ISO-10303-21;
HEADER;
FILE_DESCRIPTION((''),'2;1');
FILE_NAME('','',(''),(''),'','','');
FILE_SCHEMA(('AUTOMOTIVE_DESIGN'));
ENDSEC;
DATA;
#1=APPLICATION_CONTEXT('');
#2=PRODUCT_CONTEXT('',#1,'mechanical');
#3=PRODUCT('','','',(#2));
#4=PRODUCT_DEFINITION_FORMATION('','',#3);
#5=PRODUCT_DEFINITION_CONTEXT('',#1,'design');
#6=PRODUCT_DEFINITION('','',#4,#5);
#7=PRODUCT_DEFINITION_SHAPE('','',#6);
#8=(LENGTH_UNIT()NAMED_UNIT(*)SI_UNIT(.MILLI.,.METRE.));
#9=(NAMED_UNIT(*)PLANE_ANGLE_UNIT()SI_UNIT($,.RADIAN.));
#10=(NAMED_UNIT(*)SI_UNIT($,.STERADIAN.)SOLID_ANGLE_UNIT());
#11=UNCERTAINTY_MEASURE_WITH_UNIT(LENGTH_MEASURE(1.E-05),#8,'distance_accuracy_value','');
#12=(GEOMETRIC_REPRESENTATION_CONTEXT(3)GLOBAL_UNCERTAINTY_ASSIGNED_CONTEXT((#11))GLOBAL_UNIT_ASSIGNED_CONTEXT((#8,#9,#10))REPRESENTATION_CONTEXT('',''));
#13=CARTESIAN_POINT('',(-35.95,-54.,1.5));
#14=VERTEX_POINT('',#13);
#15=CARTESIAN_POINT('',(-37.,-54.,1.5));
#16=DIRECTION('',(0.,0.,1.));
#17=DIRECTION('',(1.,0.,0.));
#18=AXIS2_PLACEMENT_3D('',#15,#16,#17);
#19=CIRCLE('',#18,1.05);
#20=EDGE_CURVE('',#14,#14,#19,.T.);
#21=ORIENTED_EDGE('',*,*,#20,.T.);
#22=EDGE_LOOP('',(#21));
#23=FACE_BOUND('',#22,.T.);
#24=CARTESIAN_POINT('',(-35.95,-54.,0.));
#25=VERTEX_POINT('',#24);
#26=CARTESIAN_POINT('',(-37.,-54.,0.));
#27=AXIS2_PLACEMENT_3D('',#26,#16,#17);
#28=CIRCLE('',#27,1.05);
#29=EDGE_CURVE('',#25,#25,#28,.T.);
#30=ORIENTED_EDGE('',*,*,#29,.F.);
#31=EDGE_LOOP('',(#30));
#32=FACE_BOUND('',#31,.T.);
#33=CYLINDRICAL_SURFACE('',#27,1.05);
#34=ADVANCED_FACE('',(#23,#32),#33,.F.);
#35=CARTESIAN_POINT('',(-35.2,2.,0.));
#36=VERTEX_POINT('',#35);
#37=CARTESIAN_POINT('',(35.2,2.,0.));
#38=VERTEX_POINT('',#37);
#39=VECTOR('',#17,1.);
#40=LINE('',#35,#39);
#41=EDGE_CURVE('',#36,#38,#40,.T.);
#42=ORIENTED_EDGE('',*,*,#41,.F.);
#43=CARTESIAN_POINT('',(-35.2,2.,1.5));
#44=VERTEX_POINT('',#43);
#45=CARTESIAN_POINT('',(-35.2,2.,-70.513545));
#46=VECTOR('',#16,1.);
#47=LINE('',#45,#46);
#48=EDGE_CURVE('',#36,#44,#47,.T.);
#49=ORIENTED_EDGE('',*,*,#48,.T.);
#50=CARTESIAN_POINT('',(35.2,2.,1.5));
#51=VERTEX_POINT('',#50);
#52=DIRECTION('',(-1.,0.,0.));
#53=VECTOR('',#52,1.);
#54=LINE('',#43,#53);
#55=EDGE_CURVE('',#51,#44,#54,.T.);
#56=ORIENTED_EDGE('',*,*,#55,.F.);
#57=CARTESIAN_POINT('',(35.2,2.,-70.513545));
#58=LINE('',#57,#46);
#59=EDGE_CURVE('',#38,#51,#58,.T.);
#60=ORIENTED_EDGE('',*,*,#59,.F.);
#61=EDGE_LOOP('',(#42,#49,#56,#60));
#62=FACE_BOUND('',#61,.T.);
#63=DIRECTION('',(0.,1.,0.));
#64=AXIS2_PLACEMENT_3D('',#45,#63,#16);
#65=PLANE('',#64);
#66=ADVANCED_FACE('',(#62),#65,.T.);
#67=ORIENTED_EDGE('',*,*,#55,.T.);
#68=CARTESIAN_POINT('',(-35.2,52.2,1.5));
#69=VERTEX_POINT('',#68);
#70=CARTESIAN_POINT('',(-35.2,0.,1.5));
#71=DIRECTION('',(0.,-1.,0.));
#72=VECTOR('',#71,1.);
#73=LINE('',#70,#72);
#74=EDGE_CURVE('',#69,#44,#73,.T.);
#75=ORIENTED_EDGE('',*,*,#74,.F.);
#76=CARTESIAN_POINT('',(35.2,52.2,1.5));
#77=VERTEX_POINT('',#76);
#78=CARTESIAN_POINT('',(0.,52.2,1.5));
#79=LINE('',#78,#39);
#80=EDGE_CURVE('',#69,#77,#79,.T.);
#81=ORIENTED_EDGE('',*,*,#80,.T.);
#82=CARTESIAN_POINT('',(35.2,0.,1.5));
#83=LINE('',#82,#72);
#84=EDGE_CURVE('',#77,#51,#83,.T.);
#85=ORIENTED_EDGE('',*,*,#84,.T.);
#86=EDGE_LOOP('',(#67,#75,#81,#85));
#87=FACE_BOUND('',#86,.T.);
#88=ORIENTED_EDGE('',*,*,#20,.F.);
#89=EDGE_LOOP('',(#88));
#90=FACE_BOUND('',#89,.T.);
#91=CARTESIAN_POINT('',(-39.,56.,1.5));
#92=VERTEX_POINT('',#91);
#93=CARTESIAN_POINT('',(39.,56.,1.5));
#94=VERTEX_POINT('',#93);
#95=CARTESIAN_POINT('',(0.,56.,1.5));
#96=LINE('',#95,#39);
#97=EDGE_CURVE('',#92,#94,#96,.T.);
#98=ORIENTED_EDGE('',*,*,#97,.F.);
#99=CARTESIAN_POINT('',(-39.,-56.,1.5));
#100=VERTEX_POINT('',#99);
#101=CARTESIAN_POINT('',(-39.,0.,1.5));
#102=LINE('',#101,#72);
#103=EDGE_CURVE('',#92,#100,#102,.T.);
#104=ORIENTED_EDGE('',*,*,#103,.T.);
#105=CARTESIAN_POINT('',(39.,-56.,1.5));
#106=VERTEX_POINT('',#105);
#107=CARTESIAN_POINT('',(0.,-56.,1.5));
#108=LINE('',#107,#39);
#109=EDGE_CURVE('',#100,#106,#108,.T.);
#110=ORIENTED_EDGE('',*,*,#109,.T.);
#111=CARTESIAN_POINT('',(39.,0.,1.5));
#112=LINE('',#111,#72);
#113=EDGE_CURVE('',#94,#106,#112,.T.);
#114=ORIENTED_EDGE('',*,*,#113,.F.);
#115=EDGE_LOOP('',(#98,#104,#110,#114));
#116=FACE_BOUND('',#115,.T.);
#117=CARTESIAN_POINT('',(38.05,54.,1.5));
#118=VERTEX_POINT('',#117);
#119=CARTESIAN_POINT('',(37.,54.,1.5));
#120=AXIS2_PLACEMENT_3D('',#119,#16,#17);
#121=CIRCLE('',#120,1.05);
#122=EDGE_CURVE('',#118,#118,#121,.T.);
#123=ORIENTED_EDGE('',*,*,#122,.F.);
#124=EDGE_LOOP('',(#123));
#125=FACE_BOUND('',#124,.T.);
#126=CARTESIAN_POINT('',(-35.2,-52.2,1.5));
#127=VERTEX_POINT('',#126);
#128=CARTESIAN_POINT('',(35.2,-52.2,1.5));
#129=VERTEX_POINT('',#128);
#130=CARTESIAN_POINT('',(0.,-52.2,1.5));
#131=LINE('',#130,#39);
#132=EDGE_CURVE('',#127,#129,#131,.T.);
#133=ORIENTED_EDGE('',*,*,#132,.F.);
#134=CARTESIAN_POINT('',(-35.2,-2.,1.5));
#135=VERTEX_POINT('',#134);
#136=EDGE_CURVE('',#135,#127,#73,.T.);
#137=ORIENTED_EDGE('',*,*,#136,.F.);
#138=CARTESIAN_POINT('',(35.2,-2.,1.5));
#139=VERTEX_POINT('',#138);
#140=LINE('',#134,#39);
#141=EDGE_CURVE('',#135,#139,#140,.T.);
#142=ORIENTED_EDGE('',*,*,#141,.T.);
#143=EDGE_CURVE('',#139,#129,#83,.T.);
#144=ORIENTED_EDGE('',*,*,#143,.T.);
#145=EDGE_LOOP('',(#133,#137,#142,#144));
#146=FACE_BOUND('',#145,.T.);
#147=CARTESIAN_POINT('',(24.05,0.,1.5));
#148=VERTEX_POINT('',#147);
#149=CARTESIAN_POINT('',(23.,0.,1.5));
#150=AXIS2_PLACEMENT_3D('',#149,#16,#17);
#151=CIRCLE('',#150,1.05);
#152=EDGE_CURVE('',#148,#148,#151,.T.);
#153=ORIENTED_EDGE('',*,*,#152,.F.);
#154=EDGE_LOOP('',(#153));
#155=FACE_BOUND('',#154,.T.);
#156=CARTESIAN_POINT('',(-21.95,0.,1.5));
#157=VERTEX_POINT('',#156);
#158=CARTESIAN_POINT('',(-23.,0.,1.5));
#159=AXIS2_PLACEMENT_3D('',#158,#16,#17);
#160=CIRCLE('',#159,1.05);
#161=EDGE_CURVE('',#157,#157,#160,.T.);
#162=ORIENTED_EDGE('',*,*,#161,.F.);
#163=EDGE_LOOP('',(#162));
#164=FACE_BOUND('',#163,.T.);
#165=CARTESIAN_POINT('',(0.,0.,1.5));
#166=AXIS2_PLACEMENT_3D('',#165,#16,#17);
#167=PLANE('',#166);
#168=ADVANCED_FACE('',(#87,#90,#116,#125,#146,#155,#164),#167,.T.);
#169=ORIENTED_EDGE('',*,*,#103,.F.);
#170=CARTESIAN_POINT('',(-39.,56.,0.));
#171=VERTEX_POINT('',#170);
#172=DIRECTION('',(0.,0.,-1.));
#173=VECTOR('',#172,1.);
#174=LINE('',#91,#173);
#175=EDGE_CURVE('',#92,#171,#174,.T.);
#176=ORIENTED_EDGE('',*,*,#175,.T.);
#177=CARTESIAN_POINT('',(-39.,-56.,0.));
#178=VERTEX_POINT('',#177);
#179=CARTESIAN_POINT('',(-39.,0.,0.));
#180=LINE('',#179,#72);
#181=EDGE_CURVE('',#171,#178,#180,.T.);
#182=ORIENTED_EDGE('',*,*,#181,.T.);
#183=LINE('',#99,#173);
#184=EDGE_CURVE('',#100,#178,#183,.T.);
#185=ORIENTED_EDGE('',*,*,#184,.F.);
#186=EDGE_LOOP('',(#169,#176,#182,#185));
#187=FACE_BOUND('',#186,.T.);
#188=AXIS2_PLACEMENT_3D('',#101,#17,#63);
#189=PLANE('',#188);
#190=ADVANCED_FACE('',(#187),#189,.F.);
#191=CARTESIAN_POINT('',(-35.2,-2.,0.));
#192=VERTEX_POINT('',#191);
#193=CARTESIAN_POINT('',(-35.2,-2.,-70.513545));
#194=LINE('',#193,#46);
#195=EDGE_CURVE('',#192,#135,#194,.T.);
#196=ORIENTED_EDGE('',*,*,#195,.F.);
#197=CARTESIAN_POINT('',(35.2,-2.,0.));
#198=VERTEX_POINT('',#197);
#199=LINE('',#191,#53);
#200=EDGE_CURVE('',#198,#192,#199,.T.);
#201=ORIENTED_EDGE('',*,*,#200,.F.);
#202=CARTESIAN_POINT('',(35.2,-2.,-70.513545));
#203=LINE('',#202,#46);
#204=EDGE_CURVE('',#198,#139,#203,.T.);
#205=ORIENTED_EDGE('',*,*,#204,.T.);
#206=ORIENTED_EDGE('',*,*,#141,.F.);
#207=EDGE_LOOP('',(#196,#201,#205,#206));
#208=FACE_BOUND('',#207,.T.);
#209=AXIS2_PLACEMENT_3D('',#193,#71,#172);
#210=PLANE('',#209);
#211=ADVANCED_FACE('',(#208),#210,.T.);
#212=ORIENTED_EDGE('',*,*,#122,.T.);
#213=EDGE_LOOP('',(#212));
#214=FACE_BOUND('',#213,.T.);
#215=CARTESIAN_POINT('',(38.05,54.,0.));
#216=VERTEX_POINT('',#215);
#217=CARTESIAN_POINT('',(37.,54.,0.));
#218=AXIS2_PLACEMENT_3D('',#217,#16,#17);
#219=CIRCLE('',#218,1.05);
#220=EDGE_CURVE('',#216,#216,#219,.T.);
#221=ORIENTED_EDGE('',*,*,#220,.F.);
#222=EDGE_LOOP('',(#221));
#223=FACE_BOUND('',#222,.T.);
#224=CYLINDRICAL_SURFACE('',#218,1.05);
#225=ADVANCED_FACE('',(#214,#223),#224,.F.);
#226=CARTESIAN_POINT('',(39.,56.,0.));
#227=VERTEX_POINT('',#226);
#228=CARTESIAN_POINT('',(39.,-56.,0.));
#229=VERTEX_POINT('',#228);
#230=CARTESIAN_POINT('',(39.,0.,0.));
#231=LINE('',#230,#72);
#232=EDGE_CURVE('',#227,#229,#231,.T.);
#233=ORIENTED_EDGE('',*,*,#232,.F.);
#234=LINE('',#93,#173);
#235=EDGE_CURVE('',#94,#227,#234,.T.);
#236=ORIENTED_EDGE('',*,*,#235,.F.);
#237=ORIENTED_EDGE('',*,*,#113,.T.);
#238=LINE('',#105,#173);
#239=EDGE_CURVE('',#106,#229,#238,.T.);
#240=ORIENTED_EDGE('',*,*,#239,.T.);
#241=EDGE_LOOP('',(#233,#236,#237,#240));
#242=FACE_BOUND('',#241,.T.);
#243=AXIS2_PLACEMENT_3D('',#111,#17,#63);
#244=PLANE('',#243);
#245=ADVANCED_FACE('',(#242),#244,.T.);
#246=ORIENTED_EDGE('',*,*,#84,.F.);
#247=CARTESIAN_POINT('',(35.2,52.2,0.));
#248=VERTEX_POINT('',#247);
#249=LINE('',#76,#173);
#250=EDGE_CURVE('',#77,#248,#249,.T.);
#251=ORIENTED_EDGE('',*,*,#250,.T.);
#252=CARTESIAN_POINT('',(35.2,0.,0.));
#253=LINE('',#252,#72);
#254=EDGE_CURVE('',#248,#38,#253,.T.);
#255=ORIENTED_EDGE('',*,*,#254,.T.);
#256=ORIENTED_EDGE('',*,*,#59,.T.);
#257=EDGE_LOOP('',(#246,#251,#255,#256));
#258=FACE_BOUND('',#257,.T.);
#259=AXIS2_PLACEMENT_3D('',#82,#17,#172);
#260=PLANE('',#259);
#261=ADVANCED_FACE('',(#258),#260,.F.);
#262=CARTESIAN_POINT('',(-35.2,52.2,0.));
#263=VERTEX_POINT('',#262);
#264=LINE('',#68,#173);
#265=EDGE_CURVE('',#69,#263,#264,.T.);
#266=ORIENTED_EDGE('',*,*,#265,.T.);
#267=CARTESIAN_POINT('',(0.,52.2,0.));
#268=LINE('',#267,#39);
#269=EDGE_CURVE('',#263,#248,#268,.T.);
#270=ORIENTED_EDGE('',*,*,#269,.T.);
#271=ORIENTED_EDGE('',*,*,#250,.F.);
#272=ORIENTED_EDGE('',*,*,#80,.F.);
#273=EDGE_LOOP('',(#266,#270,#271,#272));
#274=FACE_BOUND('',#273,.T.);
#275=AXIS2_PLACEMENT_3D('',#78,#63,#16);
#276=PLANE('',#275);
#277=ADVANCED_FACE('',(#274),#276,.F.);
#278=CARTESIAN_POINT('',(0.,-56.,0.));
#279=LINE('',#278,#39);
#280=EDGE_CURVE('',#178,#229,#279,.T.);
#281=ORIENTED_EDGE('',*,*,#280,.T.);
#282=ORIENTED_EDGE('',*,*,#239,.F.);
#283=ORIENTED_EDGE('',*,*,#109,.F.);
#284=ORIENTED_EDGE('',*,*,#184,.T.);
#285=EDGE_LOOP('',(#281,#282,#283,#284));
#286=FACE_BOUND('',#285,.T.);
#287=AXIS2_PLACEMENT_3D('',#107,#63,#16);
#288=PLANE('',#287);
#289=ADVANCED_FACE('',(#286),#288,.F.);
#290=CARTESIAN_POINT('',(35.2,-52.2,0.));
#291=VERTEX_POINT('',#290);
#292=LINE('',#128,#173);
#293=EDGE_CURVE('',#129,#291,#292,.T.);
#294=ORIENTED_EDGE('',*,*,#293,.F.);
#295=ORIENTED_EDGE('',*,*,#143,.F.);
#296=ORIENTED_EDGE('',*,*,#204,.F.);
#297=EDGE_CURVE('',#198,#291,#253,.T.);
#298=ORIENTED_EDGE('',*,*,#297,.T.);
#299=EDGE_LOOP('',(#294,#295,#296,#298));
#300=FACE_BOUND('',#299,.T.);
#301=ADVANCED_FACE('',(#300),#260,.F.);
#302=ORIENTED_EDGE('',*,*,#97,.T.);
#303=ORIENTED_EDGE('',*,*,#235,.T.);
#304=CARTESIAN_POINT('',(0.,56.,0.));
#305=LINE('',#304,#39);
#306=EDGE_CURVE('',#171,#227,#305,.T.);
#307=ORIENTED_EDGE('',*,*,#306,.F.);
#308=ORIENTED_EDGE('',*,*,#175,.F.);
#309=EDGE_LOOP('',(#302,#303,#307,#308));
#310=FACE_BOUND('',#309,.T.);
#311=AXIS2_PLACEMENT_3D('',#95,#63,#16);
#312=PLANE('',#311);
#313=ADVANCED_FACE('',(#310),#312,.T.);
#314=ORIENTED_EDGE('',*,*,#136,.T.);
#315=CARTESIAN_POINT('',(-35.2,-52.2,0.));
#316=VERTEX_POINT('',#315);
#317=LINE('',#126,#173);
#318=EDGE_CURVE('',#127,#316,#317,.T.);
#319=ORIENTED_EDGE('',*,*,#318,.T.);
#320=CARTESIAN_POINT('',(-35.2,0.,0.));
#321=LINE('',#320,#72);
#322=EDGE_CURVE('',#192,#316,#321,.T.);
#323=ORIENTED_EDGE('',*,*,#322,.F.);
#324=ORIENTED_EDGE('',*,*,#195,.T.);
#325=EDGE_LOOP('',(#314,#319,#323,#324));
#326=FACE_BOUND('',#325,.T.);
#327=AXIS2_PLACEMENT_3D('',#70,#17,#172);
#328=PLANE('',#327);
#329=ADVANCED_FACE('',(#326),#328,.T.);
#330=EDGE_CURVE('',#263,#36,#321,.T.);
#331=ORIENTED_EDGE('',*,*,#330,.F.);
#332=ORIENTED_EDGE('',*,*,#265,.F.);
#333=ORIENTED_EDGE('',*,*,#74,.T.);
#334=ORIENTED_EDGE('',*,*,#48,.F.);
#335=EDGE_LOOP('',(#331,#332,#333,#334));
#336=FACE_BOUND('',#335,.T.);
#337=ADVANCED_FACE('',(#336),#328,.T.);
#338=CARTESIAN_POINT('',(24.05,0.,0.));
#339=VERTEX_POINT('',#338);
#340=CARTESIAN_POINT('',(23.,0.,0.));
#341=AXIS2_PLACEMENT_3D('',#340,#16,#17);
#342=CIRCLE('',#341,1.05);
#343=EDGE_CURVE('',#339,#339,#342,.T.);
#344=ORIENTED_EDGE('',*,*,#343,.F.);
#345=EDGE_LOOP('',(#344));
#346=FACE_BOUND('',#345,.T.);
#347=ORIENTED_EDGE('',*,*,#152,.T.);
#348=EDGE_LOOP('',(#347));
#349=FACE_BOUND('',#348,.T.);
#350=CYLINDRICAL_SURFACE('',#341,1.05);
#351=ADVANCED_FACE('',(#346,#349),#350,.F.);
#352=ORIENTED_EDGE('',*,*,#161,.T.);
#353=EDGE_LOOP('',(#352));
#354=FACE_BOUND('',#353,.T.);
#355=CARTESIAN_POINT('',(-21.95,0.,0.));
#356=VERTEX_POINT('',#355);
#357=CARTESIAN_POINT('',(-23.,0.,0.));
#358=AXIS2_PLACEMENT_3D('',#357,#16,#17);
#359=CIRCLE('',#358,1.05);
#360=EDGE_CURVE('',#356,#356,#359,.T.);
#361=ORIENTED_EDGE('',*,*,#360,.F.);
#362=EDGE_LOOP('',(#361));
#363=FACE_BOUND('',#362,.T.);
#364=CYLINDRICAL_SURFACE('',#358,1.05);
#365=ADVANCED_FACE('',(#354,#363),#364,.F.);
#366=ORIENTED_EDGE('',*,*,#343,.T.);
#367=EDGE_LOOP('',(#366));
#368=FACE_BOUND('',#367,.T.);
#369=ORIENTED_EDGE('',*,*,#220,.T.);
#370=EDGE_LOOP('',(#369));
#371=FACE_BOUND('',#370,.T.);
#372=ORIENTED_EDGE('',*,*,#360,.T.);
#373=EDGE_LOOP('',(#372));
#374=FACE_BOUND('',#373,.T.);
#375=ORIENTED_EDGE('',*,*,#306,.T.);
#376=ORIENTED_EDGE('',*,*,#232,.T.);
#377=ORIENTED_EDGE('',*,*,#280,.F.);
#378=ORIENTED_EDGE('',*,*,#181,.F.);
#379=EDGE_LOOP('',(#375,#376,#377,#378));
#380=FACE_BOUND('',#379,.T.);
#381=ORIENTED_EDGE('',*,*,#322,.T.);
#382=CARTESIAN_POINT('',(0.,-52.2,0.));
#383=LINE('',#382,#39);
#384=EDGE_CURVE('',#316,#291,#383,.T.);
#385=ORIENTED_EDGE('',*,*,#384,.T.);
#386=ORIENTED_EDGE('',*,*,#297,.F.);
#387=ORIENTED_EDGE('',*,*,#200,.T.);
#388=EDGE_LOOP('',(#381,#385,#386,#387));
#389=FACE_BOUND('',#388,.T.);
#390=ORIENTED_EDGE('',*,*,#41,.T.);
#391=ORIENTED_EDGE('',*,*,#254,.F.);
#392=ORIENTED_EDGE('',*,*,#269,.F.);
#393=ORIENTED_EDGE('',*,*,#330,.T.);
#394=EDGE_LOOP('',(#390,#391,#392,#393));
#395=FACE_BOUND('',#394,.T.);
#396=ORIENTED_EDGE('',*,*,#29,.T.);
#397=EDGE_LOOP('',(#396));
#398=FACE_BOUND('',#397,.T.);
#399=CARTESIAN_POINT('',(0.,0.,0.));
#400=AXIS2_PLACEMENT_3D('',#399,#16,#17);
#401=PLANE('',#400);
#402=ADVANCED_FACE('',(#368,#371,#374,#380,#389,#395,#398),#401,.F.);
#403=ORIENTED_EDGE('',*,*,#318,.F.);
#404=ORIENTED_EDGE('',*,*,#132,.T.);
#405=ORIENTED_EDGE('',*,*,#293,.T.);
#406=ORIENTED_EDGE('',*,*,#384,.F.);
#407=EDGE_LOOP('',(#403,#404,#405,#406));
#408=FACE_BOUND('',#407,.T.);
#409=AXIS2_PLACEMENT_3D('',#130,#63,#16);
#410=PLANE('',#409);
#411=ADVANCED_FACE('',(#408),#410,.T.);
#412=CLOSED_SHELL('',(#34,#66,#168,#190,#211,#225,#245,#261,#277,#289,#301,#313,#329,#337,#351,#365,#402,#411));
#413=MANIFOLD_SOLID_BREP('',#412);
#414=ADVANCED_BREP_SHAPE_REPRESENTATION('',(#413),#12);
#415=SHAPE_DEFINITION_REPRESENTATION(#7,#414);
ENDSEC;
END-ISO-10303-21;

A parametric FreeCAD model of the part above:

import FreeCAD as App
import Part
import Sketcher
Q = App.Units.Quantity

doc = App.newDocument("Part")
params = doc.addObject("Spreadsheet::Sheet", "Params")
for row, (alias, value) in enumerate([
    ("sketch1_width", "78 mm"),
    ("sketch1_height", "112 mm"),
    ("sketch1_width2", "70.4 mm"),
    ("sketch1_height2", "104.4 mm"),
    ("pad1_length", "1.5 mm"),
    ("sketch2_height", "4 mm"),
    ("sketch2_width", "70.4 mm"),
    ("pad2_length", "1.5 mm"),
    ("sketch3_diameter", "2.1 mm"),
], start=1):
    params.set(f"A{row}", alias)
    params.set(f"B{row}", "=" + value)
    params.setAlias(f"B{row}", alias)

body = doc.addObject("PartDesign::Body", "Body")

# Sketch on XY plane
sketch1 = doc.addObject("Sketcher::SketchObject", "Sketch")
body.addObject(sketch1)
sketch1.AttachmentSupport = (doc.XY_Plane, [""])
sketch1.MapMode = "FlatFace"
sketch1.addGeometry(Part.LineSegment(App.Vector(-39, 56, 0), App.Vector(-39, -56, 0)), False)
sketch1.addGeometry(Part.LineSegment(App.Vector(-39, -56, 0), App.Vector(39, -56, 0)), False)
sketch1.addGeometry(Part.LineSegment(App.Vector(39, -56, 0), App.Vector(39, 56, 0)), False)
sketch1.addGeometry(Part.LineSegment(App.Vector(39, 56, 0), App.Vector(-39, 56, 0)), False)
sketch1.addGeometry(Part.LineSegment(App.Vector(35, -52, 0), App.Vector(-35, -52, 0)), False)
sketch1.addGeometry(Part.LineSegment(App.Vector(-35, -52, 0), App.Vector(-35, 52, 0)), False)
sketch1.addGeometry(Part.LineSegment(App.Vector(-35, 52, 0), App.Vector(35, 52, 0)), False)
sketch1.addGeometry(Part.LineSegment(App.Vector(35, 52, 0), App.Vector(35, -52, 0)), False)
sketch1.addConstraint(Sketcher.Constraint("Coincident", 0, 2, 1, 1))
sketch1.addConstraint(Sketcher.Constraint("Coincident", 1, 2, 2, 1))
sketch1.addConstraint(Sketcher.Constraint("Coincident", 2, 2, 3, 1))
sketch1.addConstraint(Sketcher.Constraint("Coincident", 3, 2, 0, 1))
sketch1.addConstraint(Sketcher.Constraint("Coincident", 4, 2, 5, 1))
sketch1.addConstraint(Sketcher.Constraint("Coincident", 5, 2, 6, 1))
sketch1.addConstraint(Sketcher.Constraint("Coincident", 6, 2, 7, 1))
sketch1.addConstraint(Sketcher.Constraint("Coincident", 7, 2, 4, 1))
sketch1.addConstraint(Sketcher.Constraint("Vertical", 0))
sketch1.addConstraint(Sketcher.Constraint("Horizontal", 1))
sketch1.addConstraint(Sketcher.Constraint("Vertical", 2))
sketch1.addConstraint(Sketcher.Constraint("Horizontal", 3))
sketch1.addConstraint(Sketcher.Constraint("Horizontal", 4))
sketch1.addConstraint(Sketcher.Constraint("Vertical", 5))
sketch1.addConstraint(Sketcher.Constraint("Horizontal", 6))
sketch1.addConstraint(Sketcher.Constraint("Vertical", 7))
sketch1.addConstraint(Sketcher.Constraint("Symmetric", 0, 2, 2, 2, -1, 1))
sketch1.addConstraint(Sketcher.Constraint("Symmetric", 4, 2, 6, 2, -1, 1))
sketch1.addConstraint(Sketcher.Constraint("DistanceX", 1, 1, 1, 2, Q("78 mm")))
sketch1.addConstraint(Sketcher.Constraint("DistanceY", 0, 2, 0, 1, Q("112 mm")))
sketch1.addConstraint(Sketcher.Constraint("DistanceX", 4, 2, 4, 1, Q("70.4 mm")))
sketch1.addConstraint(Sketcher.Constraint("DistanceY", 5, 1, 5, 2, Q("104.4 mm")))
sketch1.setExpression("Constraints[18]", "Params.sketch1_width")
sketch1.setExpression("Constraints[19]", "Params.sketch1_height")
sketch1.setExpression("Constraints[20]", "Params.sketch1_width2")
sketch1.setExpression("Constraints[21]", "Params.sketch1_height2")
pad1 = doc.addObject("PartDesign::Pad", "Pad")
body.addObject(pad1)
pad1.Profile = sketch1
pad1.setExpression("Length", "Params.pad1_length")

# Sketch on XY plane
sketch2 = doc.addObject("Sketcher::SketchObject", "Sketch001")
body.addObject(sketch2)
sketch2.AttachmentSupport = (doc.XY_Plane, [""])
sketch2.MapMode = "FlatFace"
sketch2.AttachmentOffset = App.Placement(App.Vector(0, 0, 1.5), App.Rotation())
sketch2.addGeometry(Part.LineSegment(App.Vector(-35.2, 2, 0), App.Vector(-35.2, -2, 0)), False)
sketch2.addGeometry(Part.LineSegment(App.Vector(-35.2, -2, 0), App.Vector(35.2, -2, 0)), False)
sketch2.addGeometry(Part.LineSegment(App.Vector(35.2, -2, 0), App.Vector(35.2, 2, 0)), False)
sketch2.addGeometry(Part.LineSegment(App.Vector(35.2, 2, 0), App.Vector(-35.2, 2, 0)), False)
sketch2.addConstraint(Sketcher.Constraint("Coincident", 0, 2, 1, 1))
sketch2.addConstraint(Sketcher.Constraint("Coincident", 1, 2, 2, 1))
sketch2.addConstraint(Sketcher.Constraint("Coincident", 2, 2, 3, 1))
sketch2.addConstraint(Sketcher.Constraint("Coincident", 3, 2, 0, 1))
sketch2.addConstraint(Sketcher.Constraint("Vertical", 0))
sketch2.addConstraint(Sketcher.Constraint("Horizontal", 1))
sketch2.addConstraint(Sketcher.Constraint("Vertical", 2))
sketch2.addConstraint(Sketcher.Constraint("Horizontal", 3))
sketch2.addConstraint(Sketcher.Constraint("Symmetric", 0, 2, 2, 2, -1, 1))
sketch2.addConstraint(Sketcher.Constraint("DistanceY", 0, 2, 0, 1, Q("4 mm")))
sketch2.addConstraint(Sketcher.Constraint("DistanceX", 1, 1, 1, 2, Q("70.4 mm")))
sketch2.setExpression("Constraints[9]", "Params.sketch2_height")
sketch2.setExpression("Constraints[10]", "Params.sketch2_width")
pad2 = doc.addObject("PartDesign::Pad", "Pad001")
body.addObject(pad2)
pad2.Profile = sketch2
pad2.setExpression("Length", "Params.pad2_length")
pad2.Reversed = True

# Sketch on XY plane
sketch3 = doc.addObject("Sketcher::SketchObject", "Sketch002")
body.addObject(sketch3)
sketch3.AttachmentSupport = (doc.XY_Plane, [""])
sketch3.MapMode = "FlatFace"
sketch3.AttachmentOffset = App.Placement(App.Vector(0, 0, 1.5), App.Rotation())
sketch3.addGeometry(Part.Circle(App.Vector(37, 54, 0), App.Vector(0, 0, 1), 1.1), False)
sketch3.addGeometry(Part.Circle(App.Vector(23, 0, 0), App.Vector(0, 0, 1), 1.1), False)
sketch3.addGeometry(Part.Circle(App.Vector(-23, 0, 0), App.Vector(0, 0, 1), 1.1), False)
sketch3.addGeometry(Part.Circle(App.Vector(-37, -54, 0), App.Vector(0, 0, 1), 1.1), False)
sketch3.addConstraint(Sketcher.Constraint("Equal", 0, 1))
sketch3.addConstraint(Sketcher.Constraint("Equal", 1, 2))
sketch3.addConstraint(Sketcher.Constraint("Equal", 2, 3))
sketch3.addConstraint(Sketcher.Constraint("Symmetric", 1, 3, 2, 3, -1, 1))
sketch3.addConstraint(Sketcher.Constraint("Symmetric", 0, 3, 3, 3, -1, 1))
sketch3.addConstraint(Sketcher.Constraint("PointOnObject", 1, 3, -1))
sketch3.addConstraint(Sketcher.Constraint("Diameter", 0, Q("2.1 mm")))
sketch3.addConstraint(Sketcher.Constraint("DistanceX", -1, 1, 0, 3, Q("37 mm")))
sketch3.addConstraint(Sketcher.Constraint("DistanceY", -1, 1, 0, 3, Q("54 mm")))
sketch3.addConstraint(Sketcher.Constraint("DistanceX", -1, 1, 1, 3, Q("23 mm")))
sketch3.setExpression("Constraints[6]", "Params.sketch3_diameter")
pocket1 = doc.addObject("PartDesign::Pocket", "Pocket")
body.addObject(pocket1)
pocket1.Profile = sketch3
pocket1.Type = "ThroughAll"

doc.recompute()
